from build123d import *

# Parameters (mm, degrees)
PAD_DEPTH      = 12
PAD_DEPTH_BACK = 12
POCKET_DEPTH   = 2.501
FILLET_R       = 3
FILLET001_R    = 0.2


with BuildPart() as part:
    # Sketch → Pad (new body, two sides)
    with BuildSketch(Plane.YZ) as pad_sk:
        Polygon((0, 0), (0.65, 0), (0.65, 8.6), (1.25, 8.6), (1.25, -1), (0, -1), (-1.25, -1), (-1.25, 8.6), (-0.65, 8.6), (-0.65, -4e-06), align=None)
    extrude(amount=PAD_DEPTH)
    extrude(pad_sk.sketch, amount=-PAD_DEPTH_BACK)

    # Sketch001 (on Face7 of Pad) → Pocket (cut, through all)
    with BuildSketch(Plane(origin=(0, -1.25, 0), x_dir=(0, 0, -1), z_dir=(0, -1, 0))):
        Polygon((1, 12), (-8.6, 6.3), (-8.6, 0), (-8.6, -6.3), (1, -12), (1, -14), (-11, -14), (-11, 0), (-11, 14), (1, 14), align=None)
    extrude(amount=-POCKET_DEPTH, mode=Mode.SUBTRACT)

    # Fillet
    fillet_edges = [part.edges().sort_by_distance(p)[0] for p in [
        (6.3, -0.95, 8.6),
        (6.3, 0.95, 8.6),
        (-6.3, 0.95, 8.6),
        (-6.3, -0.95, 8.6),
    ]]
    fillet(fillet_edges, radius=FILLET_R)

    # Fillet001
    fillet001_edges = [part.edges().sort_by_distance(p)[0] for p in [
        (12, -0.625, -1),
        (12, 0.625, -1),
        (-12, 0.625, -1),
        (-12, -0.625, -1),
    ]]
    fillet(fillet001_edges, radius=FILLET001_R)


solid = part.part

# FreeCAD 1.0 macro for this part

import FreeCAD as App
import Part
import Sketcher

V = App.Vector


def edges_at(feature, points):
    """Names of the edges that pass closest to the given points."""
    edges = feature.Shape.Edges
    near = lambda p: min(range(len(edges)), key=lambda i: edges[i].distToShape(Part.Vertex(*p))[0])
    return sorted({f"Edge{near(p) + 1}" for p in points})

doc = App.newDocument("Part")
body = doc.addObject("PartDesign::Body", "Body")

# Sketch on YZ plane
sketch1 = body.newObject("Sketcher::SketchObject", "Sketch")
sketch1.AttachmentSupport = (doc.getObject("YZ_Plane"), [""])
sketch1.MapMode = "FlatFace"
sketch1.addGeometry(Part.LineSegment(V(0.65, 0, 0), V(0, 0, 0)), False)
sketch1.addGeometry(Part.LineSegment(V(0, 0, 0), V(-0.65, -0.000004, 0)), False)
sketch1.addGeometry(Part.LineSegment(V(-0.65, -0.000004, 0), V(-0.65, 8.6, 0)), False)
sketch1.addGeometry(Part.LineSegment(V(-0.65, 8.6, 0), V(-1.25, 8.6, 0)), False)
sketch1.addGeometry(Part.LineSegment(V(-1.25, 8.6, 0), V(-1.25, -1, 0)), False)
sketch1.addGeometry(Part.LineSegment(V(-1.25, -1, 0), V(1.25, -1, 0)), False)
sketch1.addGeometry(Part.LineSegment(V(1.25, -1, 0), V(1.25, 8.6, 0)), False)
sketch1.addGeometry(Part.LineSegment(V(1.25, 8.6, 0), V(0.65, 8.6, 0)), False)
sketch1.addGeometry(Part.LineSegment(V(0.65, 8.6, 0), V(0.65, 0, 0)), False)
sketch1.addConstraint(Sketcher.Constraint("Coincident", 0, 2, 1, 1))
sketch1.addConstraint(Sketcher.Constraint("Coincident", 1, 2, 2, 1))
sketch1.addConstraint(Sketcher.Constraint("Coincident", 2, 2, 3, 1))
sketch1.addConstraint(Sketcher.Constraint("Coincident", 3, 2, 4, 1))
sketch1.addConstraint(Sketcher.Constraint("Coincident", 4, 2, 5, 1))
sketch1.addConstraint(Sketcher.Constraint("Coincident", 5, 2, 6, 1))
sketch1.addConstraint(Sketcher.Constraint("Coincident", 6, 2, 7, 1))
sketch1.addConstraint(Sketcher.Constraint("Coincident", 7, 2, 8, 1))
sketch1.addConstraint(Sketcher.Constraint("Coincident", 8, 2, 0, 1))
sketch1.addConstraint(Sketcher.Constraint("Horizontal", 0))
sketch1.addConstraint(Sketcher.Constraint("Vertical", 2))
sketch1.addConstraint(Sketcher.Constraint("Horizontal", 3))
sketch1.addConstraint(Sketcher.Constraint("Vertical", 4))
sketch1.addConstraint(Sketcher.Constraint("Horizontal", 5))
sketch1.addConstraint(Sketcher.Constraint("Vertical", 6))
sketch1.addConstraint(Sketcher.Constraint("Horizontal", 7))
sketch1.addConstraint(Sketcher.Constraint("Vertical", 8))
sketch1.addConstraint(Sketcher.Constraint("Coincident", 0, 2, -1, 1))
sketch1.addConstraint(Sketcher.Constraint("Symmetric", 1, 2, 8, 2, -1, 1))
sketch1.addConstraint(Sketcher.Constraint("Symmetric", 3, 2, 6, 2, -2))
sketch1.addConstraint(Sketcher.Constraint("DistanceX", 3, 2, 3, 1, 0.6))
sketch1.addConstraint(Sketcher.Constraint("DistanceX", 5, 1, 5, 2, 2.5))
sketch1.addConstraint(Sketcher.Constraint("DistanceY", 4, 2, 4, 1, 9.6))
sketch1.addConstraint(Sketcher.Constraint("DistanceY", 8, 2, 8, 1, 8.6))
pad1 = body.newObject("PartDesign::Pad", "Pad")
pad1.Profile = sketch1
pad1.Type = "TwoLengths"
pad1.Length = 12
pad1.Length2 = 12

# Sketch on XZ plane
sketch2 = body.newObject("Sketcher::SketchObject", "Sketch001")
sketch2.AttachmentSupport = (doc.getObject("XZ_Plane"), [""])
sketch2.MapMode = "FlatFace"
sketch2.AttachmentOffset = App.Placement(V(0, 0, 1.25), App.Rotation())
sketch2.addGeometry(Part.LineSegment(V(6.3, 8.6, 0), V(12, -1, 0)), False)
sketch2.addGeometry(Part.LineSegment(V(12, -1, 0), V(14, -1, 0)), False)
sketch2.addGeometry(Part.LineSegment(V(14, -1, 0), V(14, 11, 0)), False)
sketch2.addGeometry(Part.LineSegment(V(14, 11, 0), V(-14, 11, 0)), False)
sketch2.addGeometry(Part.LineSegment(V(-14, 11, 0), V(-14, -1, 0)), False)
sketch2.addGeometry(Part.LineSegment(V(-14, -1, 0), V(-12, -1, 0)), False)
sketch2.addGeometry(Part.LineSegment(V(-12, -1, 0), V(-6.3, 8.6, 0)), False)
sketch2.addGeometry(Part.LineSegment(V(-6.3, 8.6, 0), V(6.3, 8.6, 0)), False)
sketch2.addConstraint(Sketcher.Constraint("Coincident", 0, 2, 1, 1))
sketch2.addConstraint(Sketcher.Constraint("Coincident", 1, 2, 2, 1))
sketch2.addConstraint(Sketcher.Constraint("Coincident", 2, 2, 3, 1))
sketch2.addConstraint(Sketcher.Constraint("Coincident", 3, 2, 4, 1))
sketch2.addConstraint(Sketcher.Constraint("Coincident", 4, 2, 5, 1))
sketch2.addConstraint(Sketcher.Constraint("Coincident", 5, 2, 6, 1))
sketch2.addConstraint(Sketcher.Constraint("Coincident", 6, 2, 7, 1))
sketch2.addConstraint(Sketcher.Constraint("Coincident", 7, 2, 0, 1))
sketch2.addConstraint(Sketcher.Constraint("Horizontal", 1))
sketch2.addConstraint(Sketcher.Constraint("Vertical", 2))
sketch2.addConstraint(Sketcher.Constraint("Horizontal", 3))
sketch2.addConstraint(Sketcher.Constraint("Vertical", 4))
sketch2.addConstraint(Sketcher.Constraint("Horizontal", 5))
sketch2.addConstraint(Sketcher.Constraint("Horizontal", 7))
sketch2.addConstraint(Sketcher.Constraint("Symmetric", 1, 2, 4, 2, -2))
sketch2.addConstraint(Sketcher.Constraint("Equal", 1, 5))
sketch2.addConstraint(Sketcher.Constraint("Equal", 0, 6))
sketch2.addConstraint(Sketcher.Constraint("DistanceX", 1, 1, 1, 2, 2.0))
sketch2.addConstraint(Sketcher.Constraint("DistanceX", 3, 2, 3, 1, 28.0))
sketch2.addConstraint(Sketcher.Constraint("DistanceY", 2, 1, 2, 2, 12.0))
sketch2.addConstraint(Sketcher.Constraint("DistanceX", 7, 1, 7, 2, 12.6))
sketch2.addConstraint(Sketcher.Constraint("DistanceY", 0, 2, -1, 1, 1.0))
sketch2.addConstraint(Sketcher.Constraint("DistanceY", -1, 1, 6, 2, 8.6))
pocket1 = body.newObject("PartDesign::Pocket", "Pocket")
pocket1.Profile = sketch2
pocket1.Type = "ThroughAll"
doc.recompute()

fillet = body.newObject("PartDesign::Fillet", "Fillet")
fillet.Base = (pocket1, edges_at(pocket1, [
    (6.3, -0.95, 8.6),
    (6.3, 0.95, 8.6),
    (-6.3, 0.95, 8.6),
    (-6.3, -0.95, 8.6),
]))
fillet.Radius = 3
doc.recompute()

fillet2 = body.newObject("PartDesign::Fillet", "Fillet001")
fillet2.Base = (fillet, edges_at(fillet, [
    (12, 0, -1),
    (12, 0, -1),
    (-12, 0, -1),
    (-12, 0, -1),
]))
fillet2.Radius = 0.2

doc.recompute()
